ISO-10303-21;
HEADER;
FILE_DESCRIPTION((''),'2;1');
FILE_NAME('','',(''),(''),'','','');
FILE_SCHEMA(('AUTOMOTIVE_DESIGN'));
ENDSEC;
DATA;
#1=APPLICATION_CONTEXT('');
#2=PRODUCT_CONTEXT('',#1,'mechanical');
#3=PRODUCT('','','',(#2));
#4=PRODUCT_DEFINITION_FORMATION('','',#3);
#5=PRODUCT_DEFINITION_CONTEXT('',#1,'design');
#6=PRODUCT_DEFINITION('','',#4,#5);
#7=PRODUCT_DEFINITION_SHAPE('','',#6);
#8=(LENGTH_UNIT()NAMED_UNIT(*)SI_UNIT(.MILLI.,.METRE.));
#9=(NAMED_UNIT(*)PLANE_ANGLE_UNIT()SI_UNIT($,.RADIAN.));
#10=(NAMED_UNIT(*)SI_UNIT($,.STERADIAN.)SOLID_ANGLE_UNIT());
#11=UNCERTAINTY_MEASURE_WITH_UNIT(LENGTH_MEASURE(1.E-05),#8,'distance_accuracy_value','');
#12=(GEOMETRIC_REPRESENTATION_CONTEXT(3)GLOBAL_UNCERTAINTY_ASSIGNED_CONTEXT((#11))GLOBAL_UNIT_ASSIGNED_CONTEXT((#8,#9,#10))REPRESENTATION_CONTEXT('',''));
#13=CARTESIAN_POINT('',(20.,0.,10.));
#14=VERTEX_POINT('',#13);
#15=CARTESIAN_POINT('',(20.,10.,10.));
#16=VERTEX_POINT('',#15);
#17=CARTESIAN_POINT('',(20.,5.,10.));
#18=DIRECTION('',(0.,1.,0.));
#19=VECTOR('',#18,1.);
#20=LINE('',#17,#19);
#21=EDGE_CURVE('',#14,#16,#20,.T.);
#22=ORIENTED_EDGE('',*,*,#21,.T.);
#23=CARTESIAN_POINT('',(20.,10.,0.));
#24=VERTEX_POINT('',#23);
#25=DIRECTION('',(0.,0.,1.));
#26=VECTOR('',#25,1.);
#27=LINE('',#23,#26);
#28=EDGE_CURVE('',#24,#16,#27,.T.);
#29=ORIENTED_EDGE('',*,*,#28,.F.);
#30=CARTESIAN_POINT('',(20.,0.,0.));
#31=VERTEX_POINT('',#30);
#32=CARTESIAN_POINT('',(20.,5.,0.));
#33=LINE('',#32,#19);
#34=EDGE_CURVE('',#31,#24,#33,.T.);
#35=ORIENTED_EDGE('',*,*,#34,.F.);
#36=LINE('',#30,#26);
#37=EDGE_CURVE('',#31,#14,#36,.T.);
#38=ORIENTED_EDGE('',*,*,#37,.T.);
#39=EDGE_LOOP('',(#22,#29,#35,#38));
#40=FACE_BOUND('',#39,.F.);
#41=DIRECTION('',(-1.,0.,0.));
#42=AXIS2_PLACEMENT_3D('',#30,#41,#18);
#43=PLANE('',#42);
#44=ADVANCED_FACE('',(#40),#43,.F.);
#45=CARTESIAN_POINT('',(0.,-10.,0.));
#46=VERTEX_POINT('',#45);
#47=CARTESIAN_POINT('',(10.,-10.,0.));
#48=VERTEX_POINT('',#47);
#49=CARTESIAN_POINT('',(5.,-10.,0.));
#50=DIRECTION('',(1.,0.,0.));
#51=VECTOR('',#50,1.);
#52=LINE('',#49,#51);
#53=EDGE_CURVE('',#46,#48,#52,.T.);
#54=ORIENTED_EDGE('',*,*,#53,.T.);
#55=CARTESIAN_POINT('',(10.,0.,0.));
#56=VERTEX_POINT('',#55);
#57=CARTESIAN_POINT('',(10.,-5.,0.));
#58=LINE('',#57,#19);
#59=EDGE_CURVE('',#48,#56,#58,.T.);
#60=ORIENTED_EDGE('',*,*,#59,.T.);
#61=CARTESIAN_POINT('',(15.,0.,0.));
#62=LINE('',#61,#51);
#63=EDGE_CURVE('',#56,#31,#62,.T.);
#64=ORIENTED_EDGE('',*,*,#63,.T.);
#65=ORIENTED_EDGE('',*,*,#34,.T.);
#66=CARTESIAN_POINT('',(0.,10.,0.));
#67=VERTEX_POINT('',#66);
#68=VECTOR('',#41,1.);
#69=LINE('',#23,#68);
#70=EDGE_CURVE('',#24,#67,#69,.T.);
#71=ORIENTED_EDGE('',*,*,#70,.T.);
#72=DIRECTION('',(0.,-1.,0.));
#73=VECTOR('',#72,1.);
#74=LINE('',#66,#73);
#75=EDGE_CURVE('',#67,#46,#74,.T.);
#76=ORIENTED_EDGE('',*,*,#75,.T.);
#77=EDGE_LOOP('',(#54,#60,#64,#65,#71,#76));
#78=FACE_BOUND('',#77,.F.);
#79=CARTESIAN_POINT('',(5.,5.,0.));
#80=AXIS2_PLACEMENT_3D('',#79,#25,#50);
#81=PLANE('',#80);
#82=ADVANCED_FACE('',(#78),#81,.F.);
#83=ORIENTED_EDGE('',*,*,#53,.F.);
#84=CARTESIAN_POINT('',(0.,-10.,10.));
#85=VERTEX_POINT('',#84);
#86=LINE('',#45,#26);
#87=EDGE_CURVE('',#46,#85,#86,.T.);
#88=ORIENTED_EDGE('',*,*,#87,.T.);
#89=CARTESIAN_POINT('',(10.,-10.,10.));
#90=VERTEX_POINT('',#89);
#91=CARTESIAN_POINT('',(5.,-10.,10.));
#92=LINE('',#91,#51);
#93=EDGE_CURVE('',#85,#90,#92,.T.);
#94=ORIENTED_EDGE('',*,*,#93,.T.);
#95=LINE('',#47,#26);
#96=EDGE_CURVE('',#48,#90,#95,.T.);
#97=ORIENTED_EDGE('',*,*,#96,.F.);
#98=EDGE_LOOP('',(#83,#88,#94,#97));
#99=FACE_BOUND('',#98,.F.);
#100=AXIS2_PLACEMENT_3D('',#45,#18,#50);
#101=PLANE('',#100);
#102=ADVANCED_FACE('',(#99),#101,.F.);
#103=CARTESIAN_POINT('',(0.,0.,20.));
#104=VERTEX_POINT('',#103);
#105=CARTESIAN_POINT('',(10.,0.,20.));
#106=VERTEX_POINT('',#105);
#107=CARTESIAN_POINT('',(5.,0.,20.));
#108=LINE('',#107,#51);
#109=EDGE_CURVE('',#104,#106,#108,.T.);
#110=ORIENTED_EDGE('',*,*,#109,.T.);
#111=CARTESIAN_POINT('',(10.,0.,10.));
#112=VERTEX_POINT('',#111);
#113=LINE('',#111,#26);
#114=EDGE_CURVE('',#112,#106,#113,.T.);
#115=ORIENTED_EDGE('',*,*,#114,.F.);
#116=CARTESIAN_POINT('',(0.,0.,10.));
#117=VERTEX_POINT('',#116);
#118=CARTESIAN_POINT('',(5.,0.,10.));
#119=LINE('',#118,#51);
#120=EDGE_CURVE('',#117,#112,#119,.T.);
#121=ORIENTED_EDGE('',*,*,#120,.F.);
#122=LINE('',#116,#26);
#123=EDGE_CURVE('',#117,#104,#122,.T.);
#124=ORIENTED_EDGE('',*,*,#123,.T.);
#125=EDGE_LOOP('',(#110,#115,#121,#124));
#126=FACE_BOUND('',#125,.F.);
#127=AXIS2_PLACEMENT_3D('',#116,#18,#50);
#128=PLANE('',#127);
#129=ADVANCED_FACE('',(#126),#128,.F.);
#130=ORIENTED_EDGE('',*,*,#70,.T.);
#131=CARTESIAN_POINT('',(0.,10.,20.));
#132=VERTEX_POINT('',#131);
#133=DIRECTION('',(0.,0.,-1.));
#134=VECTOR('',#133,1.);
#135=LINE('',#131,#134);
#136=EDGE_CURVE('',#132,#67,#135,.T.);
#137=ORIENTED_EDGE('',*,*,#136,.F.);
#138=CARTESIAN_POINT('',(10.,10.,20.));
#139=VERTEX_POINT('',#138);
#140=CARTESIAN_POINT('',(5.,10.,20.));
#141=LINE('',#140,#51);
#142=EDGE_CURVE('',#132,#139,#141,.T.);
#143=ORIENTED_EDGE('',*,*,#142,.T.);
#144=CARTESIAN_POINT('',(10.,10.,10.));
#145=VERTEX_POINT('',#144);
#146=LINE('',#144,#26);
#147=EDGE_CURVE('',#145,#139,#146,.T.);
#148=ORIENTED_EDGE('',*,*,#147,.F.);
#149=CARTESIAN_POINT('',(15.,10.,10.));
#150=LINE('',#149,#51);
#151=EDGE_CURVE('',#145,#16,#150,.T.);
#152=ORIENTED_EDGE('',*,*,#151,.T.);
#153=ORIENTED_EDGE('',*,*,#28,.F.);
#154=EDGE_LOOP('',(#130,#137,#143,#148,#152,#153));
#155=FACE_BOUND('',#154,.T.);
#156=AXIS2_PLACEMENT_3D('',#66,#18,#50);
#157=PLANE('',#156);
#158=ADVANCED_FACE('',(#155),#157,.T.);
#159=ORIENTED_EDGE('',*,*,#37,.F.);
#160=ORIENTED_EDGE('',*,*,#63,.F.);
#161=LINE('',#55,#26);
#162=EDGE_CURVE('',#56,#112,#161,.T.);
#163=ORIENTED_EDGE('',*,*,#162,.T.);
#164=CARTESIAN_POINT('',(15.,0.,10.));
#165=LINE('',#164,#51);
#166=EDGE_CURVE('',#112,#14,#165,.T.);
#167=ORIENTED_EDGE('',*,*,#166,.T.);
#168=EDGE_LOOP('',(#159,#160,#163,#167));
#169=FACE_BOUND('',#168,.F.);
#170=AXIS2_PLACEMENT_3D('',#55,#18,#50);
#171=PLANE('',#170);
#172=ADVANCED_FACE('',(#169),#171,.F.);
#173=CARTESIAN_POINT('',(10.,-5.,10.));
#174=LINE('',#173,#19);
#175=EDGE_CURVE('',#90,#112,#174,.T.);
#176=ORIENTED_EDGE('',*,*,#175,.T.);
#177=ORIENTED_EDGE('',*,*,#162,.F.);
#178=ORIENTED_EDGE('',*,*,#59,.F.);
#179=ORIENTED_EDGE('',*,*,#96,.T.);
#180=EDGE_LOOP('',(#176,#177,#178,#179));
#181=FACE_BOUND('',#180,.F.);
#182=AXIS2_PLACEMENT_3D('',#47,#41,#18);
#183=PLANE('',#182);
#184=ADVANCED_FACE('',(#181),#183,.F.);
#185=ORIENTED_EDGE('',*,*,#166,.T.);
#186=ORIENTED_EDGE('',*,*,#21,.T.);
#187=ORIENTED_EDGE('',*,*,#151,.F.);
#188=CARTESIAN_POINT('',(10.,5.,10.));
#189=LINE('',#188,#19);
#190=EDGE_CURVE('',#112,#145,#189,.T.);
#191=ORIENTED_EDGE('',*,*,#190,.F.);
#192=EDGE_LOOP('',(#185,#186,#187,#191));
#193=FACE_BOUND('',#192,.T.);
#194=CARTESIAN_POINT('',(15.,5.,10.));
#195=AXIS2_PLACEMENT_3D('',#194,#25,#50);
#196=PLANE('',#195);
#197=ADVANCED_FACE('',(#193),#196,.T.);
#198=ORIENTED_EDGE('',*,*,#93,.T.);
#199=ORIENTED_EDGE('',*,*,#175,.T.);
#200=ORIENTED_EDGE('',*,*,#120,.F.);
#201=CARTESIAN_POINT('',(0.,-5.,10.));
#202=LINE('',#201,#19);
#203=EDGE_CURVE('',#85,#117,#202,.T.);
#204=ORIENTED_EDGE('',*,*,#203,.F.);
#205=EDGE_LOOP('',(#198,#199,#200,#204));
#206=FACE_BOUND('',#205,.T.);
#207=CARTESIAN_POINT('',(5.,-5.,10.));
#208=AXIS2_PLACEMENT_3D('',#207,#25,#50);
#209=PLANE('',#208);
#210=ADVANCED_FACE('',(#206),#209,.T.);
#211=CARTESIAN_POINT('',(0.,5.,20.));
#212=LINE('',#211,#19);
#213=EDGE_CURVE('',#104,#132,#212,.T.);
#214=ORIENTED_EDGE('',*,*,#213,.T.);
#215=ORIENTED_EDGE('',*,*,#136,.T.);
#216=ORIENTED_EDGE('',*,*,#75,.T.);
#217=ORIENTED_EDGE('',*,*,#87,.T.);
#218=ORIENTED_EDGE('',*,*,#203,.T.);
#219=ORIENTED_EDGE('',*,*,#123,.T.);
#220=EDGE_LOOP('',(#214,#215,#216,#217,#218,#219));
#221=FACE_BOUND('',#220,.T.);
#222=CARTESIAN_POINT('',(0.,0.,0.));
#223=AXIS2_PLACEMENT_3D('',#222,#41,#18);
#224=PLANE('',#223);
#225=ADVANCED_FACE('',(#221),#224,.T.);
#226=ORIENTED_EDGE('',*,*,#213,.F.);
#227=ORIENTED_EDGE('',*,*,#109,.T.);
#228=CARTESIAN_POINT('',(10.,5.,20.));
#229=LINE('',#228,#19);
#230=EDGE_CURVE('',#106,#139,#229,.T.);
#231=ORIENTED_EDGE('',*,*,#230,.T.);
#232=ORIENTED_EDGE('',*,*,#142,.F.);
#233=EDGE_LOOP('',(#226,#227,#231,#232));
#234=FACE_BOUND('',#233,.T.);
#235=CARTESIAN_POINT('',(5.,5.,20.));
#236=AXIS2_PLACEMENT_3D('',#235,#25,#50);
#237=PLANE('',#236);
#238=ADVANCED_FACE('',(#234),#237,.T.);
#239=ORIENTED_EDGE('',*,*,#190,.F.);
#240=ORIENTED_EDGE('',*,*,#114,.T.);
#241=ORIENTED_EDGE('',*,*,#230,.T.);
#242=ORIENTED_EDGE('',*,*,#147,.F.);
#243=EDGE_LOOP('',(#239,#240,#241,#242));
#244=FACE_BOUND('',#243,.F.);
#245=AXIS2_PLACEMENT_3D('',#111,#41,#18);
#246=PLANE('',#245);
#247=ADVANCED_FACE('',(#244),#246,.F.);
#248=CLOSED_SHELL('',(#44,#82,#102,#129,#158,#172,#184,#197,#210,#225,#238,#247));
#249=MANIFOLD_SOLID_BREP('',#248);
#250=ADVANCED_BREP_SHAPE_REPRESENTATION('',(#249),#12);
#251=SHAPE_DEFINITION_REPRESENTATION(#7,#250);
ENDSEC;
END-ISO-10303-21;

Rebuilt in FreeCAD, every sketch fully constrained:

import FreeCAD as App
import Part
import Sketcher


def add_polygon(sketch, points):
    """Adds a closed chain of lines whose ends are joined by coincident constraints."""
    first, n = sketch.GeometryCount, len(points)
    for a, b in zip(points, points[1:] + points[:1]):
        sketch.addGeometry(Part.LineSegment(App.Vector(*a, 0), App.Vector(*b, 0)), False)
    for i in range(n):
        sketch.addConstraint(Sketcher.Constraint("Coincident", first + i, 2, first + (i + 1) % n, 1))

doc = App.newDocument("Part")
params = doc.addObject("Spreadsheet::Sheet", "Params")
for row, (alias, value) in enumerate([
    ("sketch1_width", "10 mm"),
    ("pad1_length", "10 mm"),
    ("sketch2_width", "10 mm"),
    ("pad2_length", "10 mm"),
    ("sketch3_width", "10 mm"),
    ("pad3_length", "10 mm"),
    ("sketch4_width", "10 mm"),
    ("pad4_length", "10 mm"),
], start=1):
    params.set(f"A{row}", alias)
    params.set(f"B{row}", "=" + value)
    params.setAlias(f"B{row}", alias)

body = doc.addObject("PartDesign::Body", "Body")

sketch1 = body.newObject("Sketcher::SketchObject", "Sketch")
sketch1.AttachmentSupport = (doc.getObject("XY_Plane"), [""])
sketch1.MapMode = "FlatFace"
add_polygon(sketch1, [(10, 10), (10, 0), (20, 0), (20, 10)])
sketch1.addConstraint(Sketcher.Constraint("Vertical", 0))
sketch1.addConstraint(Sketcher.Constraint("Horizontal", 1))
sketch1.addConstraint(Sketcher.Constraint("Vertical", 2))
sketch1.addConstraint(Sketcher.Constraint("Horizontal", 3))
sketch1.addConstraint(Sketcher.Constraint("PointOnObject", 0, 2, -1))
sketch1.addConstraint(Sketcher.Constraint("Equal", 3, 0))
sketch1.addConstraint(Sketcher.Constraint("DistanceX", 1, 1, 1, 2, 10.0))
sketch1.addConstraint(Sketcher.Constraint("DistanceX", -1, 1, 0, 2, 10.0))
sketch1.setExpression("Constraints[10]", "Params.sketch1_width")
pad1 = body.newObject("PartDesign::Pad", "Pad")
pad1.Profile = sketch1
pad1.setExpression("Length", "Params.pad1_length")
body2 = doc.addObject("PartDesign::Body", "Body001")

sketch2 = body2.newObject("Sketcher::SketchObject", "Sketch001")
sketch2.AttachmentSupport = (doc.getObject("XY_Plane001"), [""])
sketch2.MapMode = "FlatFace"
add_polygon(sketch2, [(0, 0), (0, -10), (10, -10), (10, 0)])
sketch2.addConstraint(Sketcher.Constraint("Vertical", 0))
sketch2.addConstraint(Sketcher.Constraint("Horizontal", 1))
sketch2.addConstraint(Sketcher.Constraint("Vertical", 2))
sketch2.addConstraint(Sketcher.Constraint("Horizontal", 3))
sketch2.addConstraint(Sketcher.Constraint("Coincident", 3, 2, -1, 1))
sketch2.addConstraint(Sketcher.Constraint("Equal", 3, 0))
sketch2.addConstraint(Sketcher.Constraint("DistanceX", 1, 1, 1, 2, 10.0))
sketch2.setExpression("Constraints[10]", "Params.sketch2_width")
pad2 = body2.newObject("PartDesign::Pad", "Pad001")
pad2.Profile = sketch2
pad2.setExpression("Length", "Params.pad2_length")
body3 = doc.addObject("PartDesign::Body", "Body002")

sketch3 = body3.newObject("Sketcher::SketchObject", "Sketch002")
sketch3.AttachmentSupport = (doc.getObject("XY_Plane002"), [""])
sketch3.MapMode = "FlatFace"
add_polygon(sketch3, [(0, 10), (0, 0), (10, 0), (10, 10)])
sketch3.addConstraint(Sketcher.Constraint("Vertical", 0))
sketch3.addConstraint(Sketcher.Constraint("Horizontal", 1))
sketch3.addConstraint(Sketcher.Constraint("Vertical", 2))
sketch3.addConstraint(Sketcher.Constraint("Horizontal", 3))
sketch3.addConstraint(Sketcher.Constraint("Coincident", 0, 2, -1, 1))
sketch3.addConstraint(Sketcher.Constraint("Equal", 3, 0))
sketch3.addConstraint(Sketcher.Constraint("DistanceX", 1, 1, 1, 2, 10.0))
sketch3.setExpression("Constraints[10]", "Params.sketch3_width")
pad3 = body3.newObject("PartDesign::Pad", "Pad002")
pad3.Profile = sketch3
pad3.setExpression("Length", "Params.pad3_length")
body4 = doc.addObject("PartDesign::Body", "Body003")
body4.AllowCompound = True

sketch4 = body4.newObject("Sketcher::SketchObject", "Sketch003")
sketch4.AttachmentSupport = (doc.getObject("XY_Plane003"), [""])
sketch4.MapMode = "FlatFace"
sketch4.AttachmentOffset = App.Placement(App.Vector(0, 0, 10), App.Rotation())
add_polygon(sketch4, [(0, 10), (0, 0), (10, 0), (10, 10)])
sketch4.addConstraint(Sketcher.Constraint("Vertical", 0))
sketch4.addConstraint(Sketcher.Constraint("Horizontal", 1))
sketch4.addConstraint(Sketcher.Constraint("Vertical", 2))
sketch4.addConstraint(Sketcher.Constraint("Horizontal", 3))
sketch4.addConstraint(Sketcher.Constraint("Coincident", 0, 2, -1, 1))
sketch4.addConstraint(Sketcher.Constraint("Equal", 3, 0))
sketch4.addConstraint(Sketcher.Constraint("DistanceX", 1, 1, 1, 2, 10.0))
sketch4.setExpression("Constraints[10]", "Params.sketch4_width")
pad4 = body4.newObject("PartDesign::Pad", "Pad003")
pad4.Profile = sketch4
pad4.setExpression("Length", "Params.pad4_length")
doc.recompute()

boolean = body4.newObject("PartDesign::Boolean", "Boolean")
boolean.Type = "Fuse"
boolean.addObjects([body])
doc.recompute()

boolean2 = body4.newObject("PartDesign::Boolean", "Boolean001")
boolean2.Type = "Fuse"
boolean2.addObjects([body2])
doc.recompute()

boolean3 = body4.newObject("PartDesign::Boolean", "Boolean002")
boolean3.Type = "Fuse"
boolean3.addObjects([body3])

doc.recompute()
